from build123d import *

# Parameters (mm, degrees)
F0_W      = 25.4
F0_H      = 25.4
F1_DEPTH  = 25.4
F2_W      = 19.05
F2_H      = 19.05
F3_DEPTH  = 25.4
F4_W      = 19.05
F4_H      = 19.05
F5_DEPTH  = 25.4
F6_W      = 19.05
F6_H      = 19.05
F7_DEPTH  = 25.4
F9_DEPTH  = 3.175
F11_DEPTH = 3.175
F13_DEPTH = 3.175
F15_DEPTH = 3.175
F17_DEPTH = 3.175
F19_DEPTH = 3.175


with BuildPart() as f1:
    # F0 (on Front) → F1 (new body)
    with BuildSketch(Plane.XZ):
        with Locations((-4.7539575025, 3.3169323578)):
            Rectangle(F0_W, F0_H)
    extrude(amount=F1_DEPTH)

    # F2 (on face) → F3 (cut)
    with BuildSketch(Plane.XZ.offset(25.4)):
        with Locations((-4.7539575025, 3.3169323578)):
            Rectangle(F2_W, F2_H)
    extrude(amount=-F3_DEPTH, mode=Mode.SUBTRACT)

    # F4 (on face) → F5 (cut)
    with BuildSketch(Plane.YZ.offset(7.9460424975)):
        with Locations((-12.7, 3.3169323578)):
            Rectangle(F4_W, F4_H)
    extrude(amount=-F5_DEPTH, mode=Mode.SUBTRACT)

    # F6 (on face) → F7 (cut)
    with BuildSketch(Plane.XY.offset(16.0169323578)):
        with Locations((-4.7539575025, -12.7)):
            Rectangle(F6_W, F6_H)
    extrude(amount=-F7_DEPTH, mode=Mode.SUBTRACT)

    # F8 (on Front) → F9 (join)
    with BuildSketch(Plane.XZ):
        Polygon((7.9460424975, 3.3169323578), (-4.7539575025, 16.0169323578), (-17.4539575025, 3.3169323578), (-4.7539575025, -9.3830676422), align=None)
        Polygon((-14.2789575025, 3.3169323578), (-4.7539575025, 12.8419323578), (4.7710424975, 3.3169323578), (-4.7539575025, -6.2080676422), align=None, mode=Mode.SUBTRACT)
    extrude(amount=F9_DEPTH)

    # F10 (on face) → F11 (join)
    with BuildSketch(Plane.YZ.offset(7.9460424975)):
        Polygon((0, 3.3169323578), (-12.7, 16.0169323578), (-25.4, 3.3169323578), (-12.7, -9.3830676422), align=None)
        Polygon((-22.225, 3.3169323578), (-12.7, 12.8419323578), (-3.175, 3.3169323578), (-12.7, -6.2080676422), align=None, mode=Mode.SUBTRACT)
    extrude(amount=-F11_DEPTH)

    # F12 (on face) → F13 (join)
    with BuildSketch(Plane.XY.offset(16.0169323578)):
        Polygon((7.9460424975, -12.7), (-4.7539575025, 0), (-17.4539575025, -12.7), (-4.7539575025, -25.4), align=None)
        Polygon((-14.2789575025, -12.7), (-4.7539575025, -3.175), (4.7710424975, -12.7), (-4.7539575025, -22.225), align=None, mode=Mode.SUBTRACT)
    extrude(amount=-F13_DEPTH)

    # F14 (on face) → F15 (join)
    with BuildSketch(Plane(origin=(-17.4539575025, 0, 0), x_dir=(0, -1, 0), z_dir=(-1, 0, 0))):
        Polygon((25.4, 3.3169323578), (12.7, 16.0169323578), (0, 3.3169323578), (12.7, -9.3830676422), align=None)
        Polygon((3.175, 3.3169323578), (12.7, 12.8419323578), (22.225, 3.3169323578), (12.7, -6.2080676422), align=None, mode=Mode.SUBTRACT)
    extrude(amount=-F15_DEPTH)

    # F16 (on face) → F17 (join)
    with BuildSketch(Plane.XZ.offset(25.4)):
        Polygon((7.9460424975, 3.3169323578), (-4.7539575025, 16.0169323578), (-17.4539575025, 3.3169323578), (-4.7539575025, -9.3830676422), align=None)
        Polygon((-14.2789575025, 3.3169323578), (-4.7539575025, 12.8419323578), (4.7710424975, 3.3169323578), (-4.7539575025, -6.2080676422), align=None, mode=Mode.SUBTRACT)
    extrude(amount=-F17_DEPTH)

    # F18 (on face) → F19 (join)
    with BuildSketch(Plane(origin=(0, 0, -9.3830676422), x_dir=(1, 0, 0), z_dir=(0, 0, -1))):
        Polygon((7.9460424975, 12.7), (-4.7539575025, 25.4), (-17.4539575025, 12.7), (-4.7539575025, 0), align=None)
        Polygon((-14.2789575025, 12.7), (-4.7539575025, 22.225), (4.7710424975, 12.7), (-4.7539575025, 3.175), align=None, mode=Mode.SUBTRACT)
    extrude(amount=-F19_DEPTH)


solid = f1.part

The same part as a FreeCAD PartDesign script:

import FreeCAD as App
import Part
import Sketcher
from FreeCAD import Vector
Q = App.Units.Quantity

doc = App.newDocument("Part")
body = doc.addObject("PartDesign::Body", "Body")

# Sketch on XZ plane
sketch1 = doc.addObject("Sketcher::SketchObject", "Sketch")
body.addObject(sketch1)
sketch1.AttachmentSupport = (doc.XZ_Plane, [""])
sketch1.MapMode = "FlatFace"
sketch1.addGeometry(Part.LineSegment(Vector(-17.453958, 16.016932, 0), Vector(-17.453958, -9.383068, 0)), False)
sketch1.addGeometry(Part.LineSegment(Vector(-17.453958, -9.383068, 0), Vector(7.946042, -9.383068, 0)), False)
sketch1.addGeometry(Part.LineSegment(Vector(7.946042, -9.383068, 0), Vector(7.946042, 16.016932, 0)), False)
sketch1.addGeometry(Part.LineSegment(Vector(7.946042, 16.016932, 0), Vector(-17.453958, 16.016932, 0)), False)
sketch1.addConstraint(Sketcher.Constraint("Coincident", 0, 2, 1, 1))
sketch1.addConstraint(Sketcher.Constraint("Coincident", 1, 2, 2, 1))
sketch1.addConstraint(Sketcher.Constraint("Coincident", 2, 2, 3, 1))
sketch1.addConstraint(Sketcher.Constraint("Coincident", 3, 2, 0, 1))
sketch1.addConstraint(Sketcher.Constraint("Vertical", 0))
sketch1.addConstraint(Sketcher.Constraint("Horizontal", 1))
sketch1.addConstraint(Sketcher.Constraint("Vertical", 2))
sketch1.addConstraint(Sketcher.Constraint("Horizontal", 3))
sketch1.addConstraint(Sketcher.Constraint("Equal", 3, 0))
sketch1.addConstraint(Sketcher.Constraint("DistanceX", 1, 1, 1, 2, Q("1 in")))
sketch1.addConstraint(Sketcher.Constraint("DistanceX", 0, 2, -1, 1, 17.453958))
sketch1.addConstraint(Sketcher.Constraint("DistanceY", 0, 2, -1, 1, 9.383068))
pad1 = doc.addObject("PartDesign::Pad", "Pad")
body.addObject(pad1)
pad1.Profile = sketch1
pad1.Length = Q("1 in")

# Sketch on XZ plane
sketch2 = doc.addObject("Sketcher::SketchObject", "Sketch001")
body.addObject(sketch2)
sketch2.AttachmentSupport = (doc.XZ_Plane, [""])
sketch2.MapMode = "FlatFace"
sketch2.AttachmentOffset = App.Placement(Vector(0, 0, 1 * 25.4), App.Rotation())
sketch2.addGeometry(Part.LineSegment(Vector(-14.278958, 12.841932, 0), Vector(-14.278958, -6.208068, 0)), False)
sketch2.addGeometry(Part.LineSegment(Vector(-14.278958, -6.208068, 0), Vector(4.771042, -6.208068, 0)), False)
sketch2.addGeometry(Part.LineSegment(Vector(4.771042, -6.208068, 0), Vector(4.771042, 12.841932, 0)), False)
sketch2.addGeometry(Part.LineSegment(Vector(4.771042, 12.841932, 0), Vector(-14.278958, 12.841932, 0)), False)
sketch2.addConstraint(Sketcher.Constraint("Coincident", 0, 2, 1, 1))
sketch2.addConstraint(Sketcher.Constraint("Coincident", 1, 2, 2, 1))
sketch2.addConstraint(Sketcher.Constraint("Coincident", 2, 2, 3, 1))
sketch2.addConstraint(Sketcher.Constraint("Coincident", 3, 2, 0, 1))
sketch2.addConstraint(Sketcher.Constraint("Vertical", 0))
sketch2.addConstraint(Sketcher.Constraint("Horizontal", 1))
sketch2.addConstraint(Sketcher.Constraint("Vertical", 2))
sketch2.addConstraint(Sketcher.Constraint("Horizontal", 3))
sketch2.addConstraint(Sketcher.Constraint("Equal", 3, 0))
sketch2.addConstraint(Sketcher.Constraint("DistanceX", 1, 1, 1, 2, Q("0.75 in")))
sketch2.addConstraint(Sketcher.Constraint("DistanceX", 0, 2, -1, 1, 14.278958))
sketch2.addConstraint(Sketcher.Constraint("DistanceY", 0, 2, -1, 1, 6.208068))
pocket1 = doc.addObject("PartDesign::Pocket", "Pocket")
body.addObject(pocket1)
pocket1.Profile = sketch2
pocket1.Length = Q("1 in")

# Sketch on YZ plane
sketch3 = doc.addObject("Sketcher::SketchObject", "Sketch002")
body.addObject(sketch3)
sketch3.AttachmentSupport = (doc.YZ_Plane, [""])
sketch3.MapMode = "FlatFace"
sketch3.AttachmentOffset = App.Placement(Vector(0, 0, 7.946042), App.Rotation())
sketch3.addGeometry(Part.LineSegment(Vector(-22.225, 12.841932, 0), Vector(-22.225, -6.208068, 0)), False)
sketch3.addGeometry(Part.LineSegment(Vector(-22.225, -6.208068, 0), Vector(-3.175, -6.208068, 0)), False)
sketch3.addGeometry(Part.LineSegment(Vector(-3.175, -6.208068, 0), Vector(-3.175, 12.841932, 0)), False)
sketch3.addGeometry(Part.LineSegment(Vector(-3.175, 12.841932, 0), Vector(-22.225, 12.841932, 0)), False)
sketch3.addConstraint(Sketcher.Constraint("Coincident", 0, 2, 1, 1))
sketch3.addConstraint(Sketcher.Constraint("Coincident", 1, 2, 2, 1))
sketch3.addConstraint(Sketcher.Constraint("Coincident", 2, 2, 3, 1))
sketch3.addConstraint(Sketcher.Constraint("Coincident", 3, 2, 0, 1))
sketch3.addConstraint(Sketcher.Constraint("Vertical", 0))
sketch3.addConstraint(Sketcher.Constraint("Horizontal", 1))
sketch3.addConstraint(Sketcher.Constraint("Vertical", 2))
sketch3.addConstraint(Sketcher.Constraint("Horizontal", 3))
sketch3.addConstraint(Sketcher.Constraint("Equal", 3, 0))
sketch3.addConstraint(Sketcher.Constraint("DistanceX", 1, 1, 1, 2, Q("0.75 in")))
sketch3.addConstraint(Sketcher.Constraint("DistanceX", 0, 2, -1, 1, Q("0.875 in")))
sketch3.addConstraint(Sketcher.Constraint("DistanceY", 0, 2, -1, 1, 6.208068))
pocket2 = doc.addObject("PartDesign::Pocket", "Pocket001")
body.addObject(pocket2)
pocket2.Profile = sketch3
pocket2.Length = Q("1 in")

# Sketch on XY plane
sketch4 = doc.addObject("Sketcher::SketchObject", "Sketch003")
body.addObject(sketch4)
sketch4.AttachmentSupport = (doc.XY_Plane, [""])
sketch4.MapMode = "FlatFace"
sketch4.AttachmentOffset = App.Placement(Vector(0, 0, 16.016932), App.Rotation())
sketch4.addGeometry(Part.LineSegment(Vector(-14.278958, -3.175, 0), Vector(-14.278958, -22.225, 0)), False)
sketch4.addGeometry(Part.LineSegment(Vector(-14.278958, -22.225, 0), Vector(4.771042, -22.225, 0)), False)
sketch4.addGeometry(Part.LineSegment(Vector(4.771042, -22.225, 0), Vector(4.771042, -3.175, 0)), False)
sketch4.addGeometry(Part.LineSegment(Vector(4.771042, -3.175, 0), Vector(-14.278958, -3.175, 0)), False)
sketch4.addConstraint(Sketcher.Constraint("Coincident", 0, 2, 1, 1))
sketch4.addConstraint(Sketcher.Constraint("Coincident", 1, 2, 2, 1))
sketch4.addConstraint(Sketcher.Constraint("Coincident", 2, 2, 3, 1))
sketch4.addConstraint(Sketcher.Constraint("Coincident", 3, 2, 0, 1))
sketch4.addConstraint(Sketcher.Constraint("Vertical", 0))
sketch4.addConstraint(Sketcher.Constraint("Horizontal", 1))
sketch4.addConstraint(Sketcher.Constraint("Vertical", 2))
sketch4.addConstraint(Sketcher.Constraint("Horizontal", 3))
sketch4.addConstraint(Sketcher.Constraint("Equal", 3, 0))
sketch4.addConstraint(Sketcher.Constraint("DistanceX", 1, 1, 1, 2, Q("0.75 in")))
sketch4.addConstraint(Sketcher.Constraint("DistanceY", 0, 2, -1, 1, Q("0.875 in")))
sketch4.addConstraint(Sketcher.Constraint("DistanceX", 0, 2, -1, 1, 14.278958))
pocket3 = doc.addObject("PartDesign::Pocket", "Pocket002")
body.addObject(pocket3)
pocket3.Profile = sketch4
pocket3.Length = Q("1 in")

# Sketch on XZ plane
sketch5 = doc.addObject("Sketcher::SketchObject", "Sketch004")
body.addObject(sketch5)
sketch5.AttachmentSupport = (doc.XZ_Plane, [""])
sketch5.MapMode = "FlatFace"
sketch5.addGeometry(Part.LineSegment(Vector(7.946042, 3.316932, 0), Vector(-4.753958, 16.016932, 0)), False)
sketch5.addGeometry(Part.LineSegment(Vector(-4.753958, 16.016932, 0), Vector(-17.453958, 3.316932, 0)), False)
sketch5.addGeometry(Part.LineSegment(Vector(-17.453958, 3.316932, 0), Vector(-4.753958, -9.383068, 0)), False)
sketch5.addGeometry(Part.LineSegment(Vector(-4.753958, -9.383068, 0), Vector(7.946042, 3.316932, 0)), False)
sketch5.addGeometry(Part.LineSegment(Vector(-4.753958, -6.208068, 0), Vector(-14.278958, 3.316932, 0)), False)
sketch5.addGeometry(Part.LineSegment(Vector(-14.278958, 3.316932, 0), Vector(-4.753958, 12.841932, 0)), False)
sketch5.addGeometry(Part.LineSegment(Vector(-4.753958, 12.841932, 0), Vector(4.771042, 3.316932, 0)), False)
sketch5.addGeometry(Part.LineSegment(Vector(4.771042, 3.316932, 0), Vector(-4.753958, -6.208068, 0)), False)
sketch5.addConstraint(Sketcher.Constraint("Coincident", 0, 2, 1, 1))
sketch5.addConstraint(Sketcher.Constraint("Coincident", 1, 2, 2, 1))
sketch5.addConstraint(Sketcher.Constraint("Coincident", 2, 2, 3, 1))
sketch5.addConstraint(Sketcher.Constraint("Coincident", 3, 2, 0, 1))
sketch5.addConstraint(Sketcher.Constraint("Coincident", 4, 2, 5, 1))
sketch5.addConstraint(Sketcher.Constraint("Coincident", 5, 2, 6, 1))
sketch5.addConstraint(Sketcher.Constraint("Coincident", 6, 2, 7, 1))
sketch5.addConstraint(Sketcher.Constraint("Coincident", 7, 2, 4, 1))
sketch5.addConstraint(Sketcher.Constraint("Perpendicular", 0, 1))
sketch5.addConstraint(Sketcher.Constraint("Perpendicular", 1, 2))
sketch5.addConstraint(Sketcher.Constraint("Perpendicular", 2, 3))
sketch5.addConstraint(Sketcher.Constraint("Perpendicular", 3, 4))
sketch5.addConstraint(Sketcher.Constraint("Perpendicular", 4, 5))
sketch5.addConstraint(Sketcher.Constraint("Perpendicular", 5, 6))
sketch5.addConstraint(Sketcher.Constraint("Perpendicular", 6, 7))
sketch5.addConstraint(Sketcher.Constraint("Horizontal", 1, 2, 3, 2))
sketch5.addConstraint(Sketcher.Constraint("Horizontal", 3, 2, 4, 2))
sketch5.addConstraint(Sketcher.Constraint("Horizontal", 4, 2, 6, 2))
sketch5.addConstraint(Sketcher.Constraint("Vertical", 0, 2, 2, 2))
sketch5.addConstraint(Sketcher.Constraint("Vertical", 2, 2, 5, 2))
sketch5.addConstraint(Sketcher.Constraint("DistanceY", 2, 2, 0, 2, Q("1 in")))
sketch5.addConstraint(Sketcher.Constraint("DistanceX", 4, 2, 6, 2, Q("0.75 in")))
sketch5.addConstraint(Sketcher.Constraint("DistanceX", 0, 2, -1, 1, 4.753958))
sketch5.addConstraint(Sketcher.Constraint("DistanceY", -1, 1, 0, 2, 16.016932))
pad2 = doc.addObject("PartDesign::Pad", "Pad001")
body.addObject(pad2)
pad2.Profile = sketch5
pad2.Length = Q("0.125 in")

# Sketch on YZ plane
sketch6 = doc.addObject("Sketcher::SketchObject", "Sketch005")
body.addObject(sketch6)
sketch6.AttachmentSupport = (doc.YZ_Plane, [""])
sketch6.MapMode = "FlatFace"
sketch6.AttachmentOffset = App.Placement(Vector(0, 0, 7.946042), App.Rotation())
sketch6.addGeometry(Part.LineSegment(Vector(0, 3.316932, 0), Vector(-12.7, 16.016932, 0)), False)
sketch6.addGeometry(Part.LineSegment(Vector(-12.7, 16.016932, 0), Vector(-25.4, 3.316932, 0)), False)
sketch6.addGeometry(Part.LineSegment(Vector(-25.4, 3.316932, 0), Vector(-12.7, -9.383068, 0)), False)
sketch6.addGeometry(Part.LineSegment(Vector(-12.7, -9.383068, 0), Vector(0, 3.316932, 0)), False)
sketch6.addGeometry(Part.LineSegment(Vector(-12.7, -6.208068, 0), Vector(-22.225, 3.316932, 0)), False)
sketch6.addGeometry(Part.LineSegment(Vector(-22.225, 3.316932, 0), Vector(-12.7, 12.841932, 0)), False)
sketch6.addGeometry(Part.LineSegment(Vector(-12.7, 12.841932, 0), Vector(-3.175, 3.316932, 0)), False)
sketch6.addGeometry(Part.LineSegment(Vector(-3.175, 3.316932, 0), Vector(-12.7, -6.208068, 0)), False)
sketch6.addConstraint(Sketcher.Constraint("Coincident", 0, 2, 1, 1))
sketch6.addConstraint(Sketcher.Constraint("Coincident", 1, 2, 2, 1))
sketch6.addConstraint(Sketcher.Constraint("Coincident", 2, 2, 3, 1))
sketch6.addConstraint(Sketcher.Constraint("Coincident", 3, 2, 0, 1))
sketch6.addConstraint(Sketcher.Constraint("Coincident", 4, 2, 5, 1))
sketch6.addConstraint(Sketcher.Constraint("Coincident", 5, 2, 6, 1))
sketch6.addConstraint(Sketcher.Constraint("Coincident", 6, 2, 7, 1))
sketch6.addConstraint(Sketcher.Constraint("Coincident", 7, 2, 4, 1))
sketch6.addConstraint(Sketcher.Constraint("PointOnObject", 3, 2, -2))
sketch6.addConstraint(Sketcher.Constraint("Perpendicular", 0, 1))
sketch6.addConstraint(Sketcher.Constraint("Perpendicular", 1, 2))
sketch6.addConstraint(Sketcher.Constraint("Perpendicular", 2, 3))
sketch6.addConstraint(Sketcher.Constraint("Perpendicular", 3, 4))
sketch6.addConstraint(Sketcher.Constraint("Perpendicular", 4, 5))
sketch6.addConstraint(Sketcher.Constraint("Perpendicular", 5, 6))
sketch6.addConstraint(Sketcher.Constraint("Perpendicular", 6, 7))
sketch6.addConstraint(Sketcher.Constraint("Horizontal", 1, 2, 3, 2))
sketch6.addConstraint(Sketcher.Constraint("Horizontal", 3, 2, 4, 2))
sketch6.addConstraint(Sketcher.Constraint("Horizontal", 4, 2, 6, 2))
sketch6.addConstraint(Sketcher.Constraint("Vertical", 0, 2, 2, 2))
sketch6.addConstraint(Sketcher.Constraint("Vertical", 2, 2, 5, 2))
sketch6.addConstraint(Sketcher.Constraint("DistanceX", 1, 2, -1, 1, Q("1 in")))
sketch6.addConstraint(Sketcher.Constraint("DistanceX", 4, 2, 6, 2, Q("0.75 in")))
sketch6.addConstraint(Sketcher.Constraint("DistanceY", -1, 1, 0, 2, 16.016932))
pad3 = doc.addObject("PartDesign::Pad", "Pad002")
body.addObject(pad3)
pad3.Profile = sketch6
pad3.Length = Q("0.125 in")
pad3.Reversed = True

# Sketch on XY plane
sketch7 = doc.addObject("Sketcher::SketchObject", "Sketch006")
body.addObject(sketch7)
sketch7.AttachmentSupport = (doc.XY_Plane, [""])
sketch7.MapMode = "FlatFace"
sketch7.AttachmentOffset = App.Placement(Vector(0, 0, 16.016932), App.Rotation())
sketch7.addGeometry(Part.LineSegment(Vector(7.946042, -12.7, 0), Vector(-4.753958, 0, 0)), False)
sketch7.addGeometry(Part.LineSegment(Vector(-4.753958, 0, 0), Vector(-17.453958, -12.7, 0)), False)
sketch7.addGeometry(Part.LineSegment(Vector(-17.453958, -12.7, 0), Vector(-4.753958, -25.4, 0)), False)
sketch7.addGeometry(Part.LineSegment(Vector(-4.753958, -25.4, 0), Vector(7.946042, -12.7, 0)), False)
sketch7.addGeometry(Part.LineSegment(Vector(-4.753958, -22.225, 0), Vector(-14.278958, -12.7, 0)), False)
sketch7.addGeometry(Part.LineSegment(Vector(-14.278958, -12.7, 0), Vector(-4.753958, -3.175, 0)), False)
sketch7.addGeometry(Part.LineSegment(Vector(-4.753958, -3.175, 0), Vector(4.771042, -12.7, 0)), False)
sketch7.addGeometry(Part.LineSegment(Vector(4.771042, -12.7, 0), Vector(-4.753958, -22.225, 0)), False)
sketch7.addConstraint(Sketcher.Constraint("Coincident", 0, 2, 1, 1))
sketch7.addConstraint(Sketcher.Constraint("Coincident", 1, 2, 2, 1))
sketch7.addConstraint(Sketcher.Constraint("Coincident", 2, 2, 3, 1))
sketch7.addConstraint(Sketcher.Constraint("Coincident", 3, 2, 0, 1))
sketch7.addConstraint(Sketcher.Constraint("Coincident", 4, 2, 5, 1))
sketch7.addConstraint(Sketcher.Constraint("Coincident", 5, 2, 6, 1))
sketch7.addConstraint(Sketcher.Constraint("Coincident", 6, 2, 7, 1))
sketch7.addConstraint(Sketcher.Constraint("Coincident", 7, 2, 4, 1))
sketch7.addConstraint(Sketcher.Constraint("PointOnObject", 0, 2, -1))
sketch7.addConstraint(Sketcher.Constraint("Perpendicular", 0, 1))
sketch7.addConstraint(Sketcher.Constraint("Perpendicular", 1, 2))
sketch7.addConstraint(Sketcher.Constraint("Perpendicular", 2, 3))
sketch7.addConstraint(Sketcher.Constraint("Perpendicular", 3, 4))
sketch7.addConstraint(Sketcher.Constraint("Perpendicular", 4, 5))
sketch7.addConstraint(Sketcher.Constraint("Perpendicular", 5, 6))
sketch7.addConstraint(Sketcher.Constraint("Perpendicular", 6, 7))
sketch7.addConstraint(Sketcher.Constraint("Horizontal", 1, 2, 3, 2))
sketch7.addConstraint(Sketcher.Constraint("Horizontal", 3, 2, 4, 2))
sketch7.addConstraint(Sketcher.Constraint("Horizontal", 4, 2, 6, 2))
sketch7.addConstraint(Sketcher.Constraint("Vertical", 0, 2, 2, 2))
sketch7.addConstraint(Sketcher.Constraint("Vertical", 2, 2, 5, 2))
sketch7.addConstraint(Sketcher.Constraint("DistanceY", 2, 2, -1, 1, Q("1 in")))
sketch7.addConstraint(Sketcher.Constraint("DistanceX", 4, 2, 6, 2, Q("0.75 in")))
sketch7.addConstraint(Sketcher.Constraint("DistanceX", 0, 2, -1, 1, 4.753958))
pad4 = doc.addObject("PartDesign::Pad", "Pad003")
body.addObject(pad4)
pad4.Profile = sketch7
pad4.Length = Q("0.125 in")
pad4.Reversed = True

# Sketch on YZ plane
sketch8 = doc.addObject("Sketcher::SketchObject", "Sketch007")
body.addObject(sketch8)
sketch8.AttachmentSupport = (doc.YZ_Plane, [""])
sketch8.MapMode = "FlatFace"
sketch8.AttachmentOffset = App.Placement(Vector(0, 0, -17.453958), App.Rotation())
sketch8.addGeometry(Part.LineSegment(Vector(-25.4, 3.316932, 0), Vector(-12.7, 16.016932, 0)), False)
sketch8.addGeometry(Part.LineSegment(Vector(-12.7, 16.016932, 0), Vector(0, 3.316932, 0)), False)
sketch8.addGeometry(Part.LineSegment(Vector(0, 3.316932, 0), Vector(-12.7, -9.383068, 0)), False)
sketch8.addGeometry(Part.LineSegment(Vector(-12.7, -9.383068, 0), Vector(-25.4, 3.316932, 0)), False)
sketch8.addGeometry(Part.LineSegment(Vector(-12.7, -6.208068, 0), Vector(-3.175, 3.316932, 0)), False)
sketch8.addGeometry(Part.LineSegment(Vector(-3.175, 3.316932, 0), Vector(-12.7, 12.841932, 0)), False)
sketch8.addGeometry(Part.LineSegment(Vector(-12.7, 12.841932, 0), Vector(-22.225, 3.316932, 0)), False)
sketch8.addGeometry(Part.LineSegment(Vector(-22.225, 3.316932, 0), Vector(-12.7, -6.208068, 0)), False)
sketch8.addConstraint(Sketcher.Constraint("Coincident", 0, 2, 1, 1))
sketch8.addConstraint(Sketcher.Constraint("Coincident", 1, 2, 2, 1))
sketch8.addConstraint(Sketcher.Constraint("Coincident", 2, 2, 3, 1))
sketch8.addConstraint(Sketcher.Constraint("Coincident", 3, 2, 0, 1))
sketch8.addConstraint(Sketcher.Constraint("Coincident", 4, 2, 5, 1))
sketch8.addConstraint(Sketcher.Constraint("Coincident", 5, 2, 6, 1))
sketch8.addConstraint(Sketcher.Constraint("Coincident", 6, 2, 7, 1))
sketch8.addConstraint(Sketcher.Constraint("Coincident", 7, 2, 4, 1))
sketch8.addConstraint(Sketcher.Constraint("PointOnObject", 1, 2, -2))
sketch8.addConstraint(Sketcher.Constraint("Perpendicular", 0, 1))
sketch8.addConstraint(Sketcher.Constraint("Perpendicular", 1, 2))
sketch8.addConstraint(Sketcher.Constraint("Perpendicular", 2, 3))
sketch8.addConstraint(Sketcher.Constraint("Perpendicular", 3, 4))
sketch8.addConstraint(Sketcher.Constraint("Perpendicular", 4, 5))
sketch8.addConstraint(Sketcher.Constraint("Perpendicular", 5, 6))
sketch8.addConstraint(Sketcher.Constraint("Perpendicular", 6, 7))
sketch8.addConstraint(Sketcher.Constraint("Horizontal", 1, 2, 3, 2))
sketch8.addConstraint(Sketcher.Constraint("Horizontal", 3, 2, 4, 2))
sketch8.addConstraint(Sketcher.Constraint("Horizontal", 4, 2, 6, 2))
sketch8.addConstraint(Sketcher.Constraint("Vertical", 0, 2, 2, 2))
sketch8.addConstraint(Sketcher.Constraint("Vertical", 2, 2, 5, 2))
sketch8.addConstraint(Sketcher.Constraint("DistanceX", 3, 2, -1, 1, Q("1 in")))
sketch8.addConstraint(Sketcher.Constraint("DistanceX", 6, 2, 4, 2, Q("0.75 in")))
sketch8.addConstraint(Sketcher.Constraint("DistanceY", -1, 1, 0, 2, 16.016932))
pad5 = doc.addObject("PartDesign::Pad", "Pad004")
body.addObject(pad5)
pad5.Profile = sketch8
pad5.Length = Q("0.125 in")

# Sketch on XZ plane
sketch9 = doc.addObject("Sketcher::SketchObject", "Sketch008")
body.addObject(sketch9)
sketch9.AttachmentSupport = (doc.XZ_Plane, [""])
sketch9.MapMode = "FlatFace"
sketch9.AttachmentOffset = App.Placement(Vector(0, 0, 1 * 25.4), App.Rotation())
sketch9.addGeometry(Part.LineSegment(Vector(7.946042, 3.316932, 0), Vector(-4.753958, 16.016932, 0)), False)
sketch9.addGeometry(Part.LineSegment(Vector(-4.753958, 16.016932, 0), Vector(-17.453958, 3.316932, 0)), False)
sketch9.addGeometry(Part.LineSegment(Vector(-17.453958, 3.316932, 0), Vector(-4.753958, -9.383068, 0)), False)
sketch9.addGeometry(Part.LineSegment(Vector(-4.753958, -9.383068, 0), Vector(7.946042, 3.316932, 0)), False)
sketch9.addGeometry(Part.LineSegment(Vector(-4.753958, -6.208068, 0), Vector(-14.278958, 3.316932, 0)), False)
sketch9.addGeometry(Part.LineSegment(Vector(-14.278958, 3.316932, 0), Vector(-4.753958, 12.841932, 0)), False)
sketch9.addGeometry(Part.LineSegment(Vector(-4.753958, 12.841932, 0), Vector(4.771042, 3.316932, 0)), False)
sketch9.addGeometry(Part.LineSegment(Vector(4.771042, 3.316932, 0), Vector(-4.753958, -6.208068, 0)), False)
sketch9.addConstraint(Sketcher.Constraint("Coincident", 0, 2, 1, 1))
sketch9.addConstraint(Sketcher.Constraint("Coincident", 1, 2, 2, 1))
sketch9.addConstraint(Sketcher.Constraint("Coincident", 2, 2, 3, 1))
sketch9.addConstraint(Sketcher.Constraint("Coincident", 3, 2, 0, 1))
sketch9.addConstraint(Sketcher.Constraint("Coincident", 4, 2, 5, 1))
sketch9.addConstraint(Sketcher.Constraint("Coincident", 5, 2, 6, 1))
sketch9.addConstraint(Sketcher.Constraint("Coincident", 6, 2, 7, 1))
sketch9.addConstraint(Sketcher.Constraint("Coincident", 7, 2, 4, 1))
sketch9.addConstraint(Sketcher.Constraint("Perpendicular", 0, 1))
sketch9.addConstraint(Sketcher.Constraint("Perpendicular", 1, 2))
sketch9.addConstraint(Sketcher.Constraint("Perpendicular", 2, 3))
sketch9.addConstraint(Sketcher.Constraint("Perpendicular", 3, 4))
sketch9.addConstraint(Sketcher.Constraint("Perpendicular", 4, 5))
sketch9.addConstraint(Sketcher.Constraint("Perpendicular", 5, 6))
sketch9.addConstraint(Sketcher.Constraint("Perpendicular", 6, 7))
sketch9.addConstraint(Sketcher.Constraint("Horizontal", 1, 2, 3, 2))
sketch9.addConstraint(Sketcher.Constraint("Horizontal", 3, 2, 4, 2))
sketch9.addConstraint(Sketcher.Constraint("Horizontal", 4, 2, 6, 2))
sketch9.addConstraint(Sketcher.Constraint("Vertical", 0, 2, 2, 2))
sketch9.addConstraint(Sketcher.Constraint("Vertical", 2, 2, 5, 2))
sketch9.addConstraint(Sketcher.Constraint("DistanceY", 2, 2, 0, 2, Q("1 in")))
sketch9.addConstraint(Sketcher.Constraint("DistanceX", 4, 2, 6, 2, Q("0.75 in")))
sketch9.addConstraint(Sketcher.Constraint("DistanceX", 0, 2, -1, 1, 4.753958))
sketch9.addConstraint(Sketcher.Constraint("DistanceY", -1, 1, 0, 2, 16.016932))
pad6 = doc.addObject("PartDesign::Pad", "Pad005")
body.addObject(pad6)
pad6.Profile = sketch9
pad6.Length = Q("0.125 in")
pad6.Reversed = True

# Sketch on XY plane
sketch10 = doc.addObject("Sketcher::SketchObject", "Sketch009")
body.addObject(sketch10)
sketch10.AttachmentSupport = (doc.XY_Plane, [""])
sketch10.MapMode = "FlatFace"
sketch10.AttachmentOffset = App.Placement(Vector(0, 0, -9.383068), App.Rotation())
sketch10.addGeometry(Part.LineSegment(Vector(7.946042, -12.7, 0), Vector(-4.753958, -25.4, 0)), False)
sketch10.addGeometry(Part.LineSegment(Vector(-4.753958, -25.4, 0), Vector(-17.453958, -12.7, 0)), False)
sketch10.addGeometry(Part.LineSegment(Vector(-17.453958, -12.7, 0), Vector(-4.753958, 0, 0)), False)
sketch10.addGeometry(Part.LineSegment(Vector(-4.753958, 0, 0), Vector(7.946042, -12.7, 0)), False)
sketch10.addGeometry(Part.LineSegment(Vector(-4.753958, -3.175, 0), Vector(-14.278958, -12.7, 0)), False)
sketch10.addGeometry(Part.LineSegment(Vector(-14.278958, -12.7, 0), Vector(-4.753958, -22.225, 0)), False)
sketch10.addGeometry(Part.LineSegment(Vector(-4.753958, -22.225, 0), Vector(4.771042, -12.7, 0)), False)
sketch10.addGeometry(Part.LineSegment(Vector(4.771042, -12.7, 0), Vector(-4.753958, -3.175, 0)), False)
sketch10.addConstraint(Sketcher.Constraint("Coincident", 0, 2, 1, 1))
sketch10.addConstraint(Sketcher.Constraint("Coincident", 1, 2, 2, 1))
sketch10.addConstraint(Sketcher.Constraint("Coincident", 2, 2, 3, 1))
sketch10.addConstraint(Sketcher.Constraint("Coincident", 3, 2, 0, 1))
sketch10.addConstraint(Sketcher.Constraint("Coincident", 4, 2, 5, 1))
sketch10.addConstraint(Sketcher.Constraint("Coincident", 5, 2, 6, 1))
sketch10.addConstraint(Sketcher.Constraint("Coincident", 6, 2, 7, 1))
sketch10.addConstraint(Sketcher.Constraint("Coincident", 7, 2, 4, 1))
sketch10.addConstraint(Sketcher.Constraint("PointOnObject", 2, 2, -1))
sketch10.addConstraint(Sketcher.Constraint("Perpendicular", 0, 1))
sketch10.addConstraint(Sketcher.Constraint("Perpendicular", 1, 2))
sketch10.addConstraint(Sketcher.Constraint("Perpendicular", 2, 3))
sketch10.addConstraint(Sketcher.Constraint("Perpendicular", 3, 4))
sketch10.addConstraint(Sketcher.Constraint("Perpendicular", 4, 5))
sketch10.addConstraint(Sketcher.Constraint("Perpendicular", 5, 6))
sketch10.addConstraint(Sketcher.Constraint("Perpendicular", 6, 7))
sketch10.addConstraint(Sketcher.Constraint("Horizontal", 1, 2, 3, 2))
sketch10.addConstraint(Sketcher.Constraint("Horizontal", 3, 2, 4, 2))
sketch10.addConstraint(Sketcher.Constraint("Horizontal", 4, 2, 6, 2))
sketch10.addConstraint(Sketcher.Constraint("Vertical", 0, 2, 2, 2))
sketch10.addConstraint(Sketcher.Constraint("Vertical", 2, 2, 5, 2))
sketch10.addConstraint(Sketcher.Constraint("DistanceY", 0, 2, -1, 1, Q("1 in")))
sketch10.addConstraint(Sketcher.Constraint("DistanceX", 4, 2, 6, 2, Q("0.75 in")))
sketch10.addConstraint(Sketcher.Constraint("DistanceX", 0, 2, -1, 1, 4.753958))
pad7 = doc.addObject("PartDesign::Pad", "Pad006")
body.addObject(pad7)
pad7.Profile = sketch10
pad7.Length = Q("0.125 in")

doc.recompute()
